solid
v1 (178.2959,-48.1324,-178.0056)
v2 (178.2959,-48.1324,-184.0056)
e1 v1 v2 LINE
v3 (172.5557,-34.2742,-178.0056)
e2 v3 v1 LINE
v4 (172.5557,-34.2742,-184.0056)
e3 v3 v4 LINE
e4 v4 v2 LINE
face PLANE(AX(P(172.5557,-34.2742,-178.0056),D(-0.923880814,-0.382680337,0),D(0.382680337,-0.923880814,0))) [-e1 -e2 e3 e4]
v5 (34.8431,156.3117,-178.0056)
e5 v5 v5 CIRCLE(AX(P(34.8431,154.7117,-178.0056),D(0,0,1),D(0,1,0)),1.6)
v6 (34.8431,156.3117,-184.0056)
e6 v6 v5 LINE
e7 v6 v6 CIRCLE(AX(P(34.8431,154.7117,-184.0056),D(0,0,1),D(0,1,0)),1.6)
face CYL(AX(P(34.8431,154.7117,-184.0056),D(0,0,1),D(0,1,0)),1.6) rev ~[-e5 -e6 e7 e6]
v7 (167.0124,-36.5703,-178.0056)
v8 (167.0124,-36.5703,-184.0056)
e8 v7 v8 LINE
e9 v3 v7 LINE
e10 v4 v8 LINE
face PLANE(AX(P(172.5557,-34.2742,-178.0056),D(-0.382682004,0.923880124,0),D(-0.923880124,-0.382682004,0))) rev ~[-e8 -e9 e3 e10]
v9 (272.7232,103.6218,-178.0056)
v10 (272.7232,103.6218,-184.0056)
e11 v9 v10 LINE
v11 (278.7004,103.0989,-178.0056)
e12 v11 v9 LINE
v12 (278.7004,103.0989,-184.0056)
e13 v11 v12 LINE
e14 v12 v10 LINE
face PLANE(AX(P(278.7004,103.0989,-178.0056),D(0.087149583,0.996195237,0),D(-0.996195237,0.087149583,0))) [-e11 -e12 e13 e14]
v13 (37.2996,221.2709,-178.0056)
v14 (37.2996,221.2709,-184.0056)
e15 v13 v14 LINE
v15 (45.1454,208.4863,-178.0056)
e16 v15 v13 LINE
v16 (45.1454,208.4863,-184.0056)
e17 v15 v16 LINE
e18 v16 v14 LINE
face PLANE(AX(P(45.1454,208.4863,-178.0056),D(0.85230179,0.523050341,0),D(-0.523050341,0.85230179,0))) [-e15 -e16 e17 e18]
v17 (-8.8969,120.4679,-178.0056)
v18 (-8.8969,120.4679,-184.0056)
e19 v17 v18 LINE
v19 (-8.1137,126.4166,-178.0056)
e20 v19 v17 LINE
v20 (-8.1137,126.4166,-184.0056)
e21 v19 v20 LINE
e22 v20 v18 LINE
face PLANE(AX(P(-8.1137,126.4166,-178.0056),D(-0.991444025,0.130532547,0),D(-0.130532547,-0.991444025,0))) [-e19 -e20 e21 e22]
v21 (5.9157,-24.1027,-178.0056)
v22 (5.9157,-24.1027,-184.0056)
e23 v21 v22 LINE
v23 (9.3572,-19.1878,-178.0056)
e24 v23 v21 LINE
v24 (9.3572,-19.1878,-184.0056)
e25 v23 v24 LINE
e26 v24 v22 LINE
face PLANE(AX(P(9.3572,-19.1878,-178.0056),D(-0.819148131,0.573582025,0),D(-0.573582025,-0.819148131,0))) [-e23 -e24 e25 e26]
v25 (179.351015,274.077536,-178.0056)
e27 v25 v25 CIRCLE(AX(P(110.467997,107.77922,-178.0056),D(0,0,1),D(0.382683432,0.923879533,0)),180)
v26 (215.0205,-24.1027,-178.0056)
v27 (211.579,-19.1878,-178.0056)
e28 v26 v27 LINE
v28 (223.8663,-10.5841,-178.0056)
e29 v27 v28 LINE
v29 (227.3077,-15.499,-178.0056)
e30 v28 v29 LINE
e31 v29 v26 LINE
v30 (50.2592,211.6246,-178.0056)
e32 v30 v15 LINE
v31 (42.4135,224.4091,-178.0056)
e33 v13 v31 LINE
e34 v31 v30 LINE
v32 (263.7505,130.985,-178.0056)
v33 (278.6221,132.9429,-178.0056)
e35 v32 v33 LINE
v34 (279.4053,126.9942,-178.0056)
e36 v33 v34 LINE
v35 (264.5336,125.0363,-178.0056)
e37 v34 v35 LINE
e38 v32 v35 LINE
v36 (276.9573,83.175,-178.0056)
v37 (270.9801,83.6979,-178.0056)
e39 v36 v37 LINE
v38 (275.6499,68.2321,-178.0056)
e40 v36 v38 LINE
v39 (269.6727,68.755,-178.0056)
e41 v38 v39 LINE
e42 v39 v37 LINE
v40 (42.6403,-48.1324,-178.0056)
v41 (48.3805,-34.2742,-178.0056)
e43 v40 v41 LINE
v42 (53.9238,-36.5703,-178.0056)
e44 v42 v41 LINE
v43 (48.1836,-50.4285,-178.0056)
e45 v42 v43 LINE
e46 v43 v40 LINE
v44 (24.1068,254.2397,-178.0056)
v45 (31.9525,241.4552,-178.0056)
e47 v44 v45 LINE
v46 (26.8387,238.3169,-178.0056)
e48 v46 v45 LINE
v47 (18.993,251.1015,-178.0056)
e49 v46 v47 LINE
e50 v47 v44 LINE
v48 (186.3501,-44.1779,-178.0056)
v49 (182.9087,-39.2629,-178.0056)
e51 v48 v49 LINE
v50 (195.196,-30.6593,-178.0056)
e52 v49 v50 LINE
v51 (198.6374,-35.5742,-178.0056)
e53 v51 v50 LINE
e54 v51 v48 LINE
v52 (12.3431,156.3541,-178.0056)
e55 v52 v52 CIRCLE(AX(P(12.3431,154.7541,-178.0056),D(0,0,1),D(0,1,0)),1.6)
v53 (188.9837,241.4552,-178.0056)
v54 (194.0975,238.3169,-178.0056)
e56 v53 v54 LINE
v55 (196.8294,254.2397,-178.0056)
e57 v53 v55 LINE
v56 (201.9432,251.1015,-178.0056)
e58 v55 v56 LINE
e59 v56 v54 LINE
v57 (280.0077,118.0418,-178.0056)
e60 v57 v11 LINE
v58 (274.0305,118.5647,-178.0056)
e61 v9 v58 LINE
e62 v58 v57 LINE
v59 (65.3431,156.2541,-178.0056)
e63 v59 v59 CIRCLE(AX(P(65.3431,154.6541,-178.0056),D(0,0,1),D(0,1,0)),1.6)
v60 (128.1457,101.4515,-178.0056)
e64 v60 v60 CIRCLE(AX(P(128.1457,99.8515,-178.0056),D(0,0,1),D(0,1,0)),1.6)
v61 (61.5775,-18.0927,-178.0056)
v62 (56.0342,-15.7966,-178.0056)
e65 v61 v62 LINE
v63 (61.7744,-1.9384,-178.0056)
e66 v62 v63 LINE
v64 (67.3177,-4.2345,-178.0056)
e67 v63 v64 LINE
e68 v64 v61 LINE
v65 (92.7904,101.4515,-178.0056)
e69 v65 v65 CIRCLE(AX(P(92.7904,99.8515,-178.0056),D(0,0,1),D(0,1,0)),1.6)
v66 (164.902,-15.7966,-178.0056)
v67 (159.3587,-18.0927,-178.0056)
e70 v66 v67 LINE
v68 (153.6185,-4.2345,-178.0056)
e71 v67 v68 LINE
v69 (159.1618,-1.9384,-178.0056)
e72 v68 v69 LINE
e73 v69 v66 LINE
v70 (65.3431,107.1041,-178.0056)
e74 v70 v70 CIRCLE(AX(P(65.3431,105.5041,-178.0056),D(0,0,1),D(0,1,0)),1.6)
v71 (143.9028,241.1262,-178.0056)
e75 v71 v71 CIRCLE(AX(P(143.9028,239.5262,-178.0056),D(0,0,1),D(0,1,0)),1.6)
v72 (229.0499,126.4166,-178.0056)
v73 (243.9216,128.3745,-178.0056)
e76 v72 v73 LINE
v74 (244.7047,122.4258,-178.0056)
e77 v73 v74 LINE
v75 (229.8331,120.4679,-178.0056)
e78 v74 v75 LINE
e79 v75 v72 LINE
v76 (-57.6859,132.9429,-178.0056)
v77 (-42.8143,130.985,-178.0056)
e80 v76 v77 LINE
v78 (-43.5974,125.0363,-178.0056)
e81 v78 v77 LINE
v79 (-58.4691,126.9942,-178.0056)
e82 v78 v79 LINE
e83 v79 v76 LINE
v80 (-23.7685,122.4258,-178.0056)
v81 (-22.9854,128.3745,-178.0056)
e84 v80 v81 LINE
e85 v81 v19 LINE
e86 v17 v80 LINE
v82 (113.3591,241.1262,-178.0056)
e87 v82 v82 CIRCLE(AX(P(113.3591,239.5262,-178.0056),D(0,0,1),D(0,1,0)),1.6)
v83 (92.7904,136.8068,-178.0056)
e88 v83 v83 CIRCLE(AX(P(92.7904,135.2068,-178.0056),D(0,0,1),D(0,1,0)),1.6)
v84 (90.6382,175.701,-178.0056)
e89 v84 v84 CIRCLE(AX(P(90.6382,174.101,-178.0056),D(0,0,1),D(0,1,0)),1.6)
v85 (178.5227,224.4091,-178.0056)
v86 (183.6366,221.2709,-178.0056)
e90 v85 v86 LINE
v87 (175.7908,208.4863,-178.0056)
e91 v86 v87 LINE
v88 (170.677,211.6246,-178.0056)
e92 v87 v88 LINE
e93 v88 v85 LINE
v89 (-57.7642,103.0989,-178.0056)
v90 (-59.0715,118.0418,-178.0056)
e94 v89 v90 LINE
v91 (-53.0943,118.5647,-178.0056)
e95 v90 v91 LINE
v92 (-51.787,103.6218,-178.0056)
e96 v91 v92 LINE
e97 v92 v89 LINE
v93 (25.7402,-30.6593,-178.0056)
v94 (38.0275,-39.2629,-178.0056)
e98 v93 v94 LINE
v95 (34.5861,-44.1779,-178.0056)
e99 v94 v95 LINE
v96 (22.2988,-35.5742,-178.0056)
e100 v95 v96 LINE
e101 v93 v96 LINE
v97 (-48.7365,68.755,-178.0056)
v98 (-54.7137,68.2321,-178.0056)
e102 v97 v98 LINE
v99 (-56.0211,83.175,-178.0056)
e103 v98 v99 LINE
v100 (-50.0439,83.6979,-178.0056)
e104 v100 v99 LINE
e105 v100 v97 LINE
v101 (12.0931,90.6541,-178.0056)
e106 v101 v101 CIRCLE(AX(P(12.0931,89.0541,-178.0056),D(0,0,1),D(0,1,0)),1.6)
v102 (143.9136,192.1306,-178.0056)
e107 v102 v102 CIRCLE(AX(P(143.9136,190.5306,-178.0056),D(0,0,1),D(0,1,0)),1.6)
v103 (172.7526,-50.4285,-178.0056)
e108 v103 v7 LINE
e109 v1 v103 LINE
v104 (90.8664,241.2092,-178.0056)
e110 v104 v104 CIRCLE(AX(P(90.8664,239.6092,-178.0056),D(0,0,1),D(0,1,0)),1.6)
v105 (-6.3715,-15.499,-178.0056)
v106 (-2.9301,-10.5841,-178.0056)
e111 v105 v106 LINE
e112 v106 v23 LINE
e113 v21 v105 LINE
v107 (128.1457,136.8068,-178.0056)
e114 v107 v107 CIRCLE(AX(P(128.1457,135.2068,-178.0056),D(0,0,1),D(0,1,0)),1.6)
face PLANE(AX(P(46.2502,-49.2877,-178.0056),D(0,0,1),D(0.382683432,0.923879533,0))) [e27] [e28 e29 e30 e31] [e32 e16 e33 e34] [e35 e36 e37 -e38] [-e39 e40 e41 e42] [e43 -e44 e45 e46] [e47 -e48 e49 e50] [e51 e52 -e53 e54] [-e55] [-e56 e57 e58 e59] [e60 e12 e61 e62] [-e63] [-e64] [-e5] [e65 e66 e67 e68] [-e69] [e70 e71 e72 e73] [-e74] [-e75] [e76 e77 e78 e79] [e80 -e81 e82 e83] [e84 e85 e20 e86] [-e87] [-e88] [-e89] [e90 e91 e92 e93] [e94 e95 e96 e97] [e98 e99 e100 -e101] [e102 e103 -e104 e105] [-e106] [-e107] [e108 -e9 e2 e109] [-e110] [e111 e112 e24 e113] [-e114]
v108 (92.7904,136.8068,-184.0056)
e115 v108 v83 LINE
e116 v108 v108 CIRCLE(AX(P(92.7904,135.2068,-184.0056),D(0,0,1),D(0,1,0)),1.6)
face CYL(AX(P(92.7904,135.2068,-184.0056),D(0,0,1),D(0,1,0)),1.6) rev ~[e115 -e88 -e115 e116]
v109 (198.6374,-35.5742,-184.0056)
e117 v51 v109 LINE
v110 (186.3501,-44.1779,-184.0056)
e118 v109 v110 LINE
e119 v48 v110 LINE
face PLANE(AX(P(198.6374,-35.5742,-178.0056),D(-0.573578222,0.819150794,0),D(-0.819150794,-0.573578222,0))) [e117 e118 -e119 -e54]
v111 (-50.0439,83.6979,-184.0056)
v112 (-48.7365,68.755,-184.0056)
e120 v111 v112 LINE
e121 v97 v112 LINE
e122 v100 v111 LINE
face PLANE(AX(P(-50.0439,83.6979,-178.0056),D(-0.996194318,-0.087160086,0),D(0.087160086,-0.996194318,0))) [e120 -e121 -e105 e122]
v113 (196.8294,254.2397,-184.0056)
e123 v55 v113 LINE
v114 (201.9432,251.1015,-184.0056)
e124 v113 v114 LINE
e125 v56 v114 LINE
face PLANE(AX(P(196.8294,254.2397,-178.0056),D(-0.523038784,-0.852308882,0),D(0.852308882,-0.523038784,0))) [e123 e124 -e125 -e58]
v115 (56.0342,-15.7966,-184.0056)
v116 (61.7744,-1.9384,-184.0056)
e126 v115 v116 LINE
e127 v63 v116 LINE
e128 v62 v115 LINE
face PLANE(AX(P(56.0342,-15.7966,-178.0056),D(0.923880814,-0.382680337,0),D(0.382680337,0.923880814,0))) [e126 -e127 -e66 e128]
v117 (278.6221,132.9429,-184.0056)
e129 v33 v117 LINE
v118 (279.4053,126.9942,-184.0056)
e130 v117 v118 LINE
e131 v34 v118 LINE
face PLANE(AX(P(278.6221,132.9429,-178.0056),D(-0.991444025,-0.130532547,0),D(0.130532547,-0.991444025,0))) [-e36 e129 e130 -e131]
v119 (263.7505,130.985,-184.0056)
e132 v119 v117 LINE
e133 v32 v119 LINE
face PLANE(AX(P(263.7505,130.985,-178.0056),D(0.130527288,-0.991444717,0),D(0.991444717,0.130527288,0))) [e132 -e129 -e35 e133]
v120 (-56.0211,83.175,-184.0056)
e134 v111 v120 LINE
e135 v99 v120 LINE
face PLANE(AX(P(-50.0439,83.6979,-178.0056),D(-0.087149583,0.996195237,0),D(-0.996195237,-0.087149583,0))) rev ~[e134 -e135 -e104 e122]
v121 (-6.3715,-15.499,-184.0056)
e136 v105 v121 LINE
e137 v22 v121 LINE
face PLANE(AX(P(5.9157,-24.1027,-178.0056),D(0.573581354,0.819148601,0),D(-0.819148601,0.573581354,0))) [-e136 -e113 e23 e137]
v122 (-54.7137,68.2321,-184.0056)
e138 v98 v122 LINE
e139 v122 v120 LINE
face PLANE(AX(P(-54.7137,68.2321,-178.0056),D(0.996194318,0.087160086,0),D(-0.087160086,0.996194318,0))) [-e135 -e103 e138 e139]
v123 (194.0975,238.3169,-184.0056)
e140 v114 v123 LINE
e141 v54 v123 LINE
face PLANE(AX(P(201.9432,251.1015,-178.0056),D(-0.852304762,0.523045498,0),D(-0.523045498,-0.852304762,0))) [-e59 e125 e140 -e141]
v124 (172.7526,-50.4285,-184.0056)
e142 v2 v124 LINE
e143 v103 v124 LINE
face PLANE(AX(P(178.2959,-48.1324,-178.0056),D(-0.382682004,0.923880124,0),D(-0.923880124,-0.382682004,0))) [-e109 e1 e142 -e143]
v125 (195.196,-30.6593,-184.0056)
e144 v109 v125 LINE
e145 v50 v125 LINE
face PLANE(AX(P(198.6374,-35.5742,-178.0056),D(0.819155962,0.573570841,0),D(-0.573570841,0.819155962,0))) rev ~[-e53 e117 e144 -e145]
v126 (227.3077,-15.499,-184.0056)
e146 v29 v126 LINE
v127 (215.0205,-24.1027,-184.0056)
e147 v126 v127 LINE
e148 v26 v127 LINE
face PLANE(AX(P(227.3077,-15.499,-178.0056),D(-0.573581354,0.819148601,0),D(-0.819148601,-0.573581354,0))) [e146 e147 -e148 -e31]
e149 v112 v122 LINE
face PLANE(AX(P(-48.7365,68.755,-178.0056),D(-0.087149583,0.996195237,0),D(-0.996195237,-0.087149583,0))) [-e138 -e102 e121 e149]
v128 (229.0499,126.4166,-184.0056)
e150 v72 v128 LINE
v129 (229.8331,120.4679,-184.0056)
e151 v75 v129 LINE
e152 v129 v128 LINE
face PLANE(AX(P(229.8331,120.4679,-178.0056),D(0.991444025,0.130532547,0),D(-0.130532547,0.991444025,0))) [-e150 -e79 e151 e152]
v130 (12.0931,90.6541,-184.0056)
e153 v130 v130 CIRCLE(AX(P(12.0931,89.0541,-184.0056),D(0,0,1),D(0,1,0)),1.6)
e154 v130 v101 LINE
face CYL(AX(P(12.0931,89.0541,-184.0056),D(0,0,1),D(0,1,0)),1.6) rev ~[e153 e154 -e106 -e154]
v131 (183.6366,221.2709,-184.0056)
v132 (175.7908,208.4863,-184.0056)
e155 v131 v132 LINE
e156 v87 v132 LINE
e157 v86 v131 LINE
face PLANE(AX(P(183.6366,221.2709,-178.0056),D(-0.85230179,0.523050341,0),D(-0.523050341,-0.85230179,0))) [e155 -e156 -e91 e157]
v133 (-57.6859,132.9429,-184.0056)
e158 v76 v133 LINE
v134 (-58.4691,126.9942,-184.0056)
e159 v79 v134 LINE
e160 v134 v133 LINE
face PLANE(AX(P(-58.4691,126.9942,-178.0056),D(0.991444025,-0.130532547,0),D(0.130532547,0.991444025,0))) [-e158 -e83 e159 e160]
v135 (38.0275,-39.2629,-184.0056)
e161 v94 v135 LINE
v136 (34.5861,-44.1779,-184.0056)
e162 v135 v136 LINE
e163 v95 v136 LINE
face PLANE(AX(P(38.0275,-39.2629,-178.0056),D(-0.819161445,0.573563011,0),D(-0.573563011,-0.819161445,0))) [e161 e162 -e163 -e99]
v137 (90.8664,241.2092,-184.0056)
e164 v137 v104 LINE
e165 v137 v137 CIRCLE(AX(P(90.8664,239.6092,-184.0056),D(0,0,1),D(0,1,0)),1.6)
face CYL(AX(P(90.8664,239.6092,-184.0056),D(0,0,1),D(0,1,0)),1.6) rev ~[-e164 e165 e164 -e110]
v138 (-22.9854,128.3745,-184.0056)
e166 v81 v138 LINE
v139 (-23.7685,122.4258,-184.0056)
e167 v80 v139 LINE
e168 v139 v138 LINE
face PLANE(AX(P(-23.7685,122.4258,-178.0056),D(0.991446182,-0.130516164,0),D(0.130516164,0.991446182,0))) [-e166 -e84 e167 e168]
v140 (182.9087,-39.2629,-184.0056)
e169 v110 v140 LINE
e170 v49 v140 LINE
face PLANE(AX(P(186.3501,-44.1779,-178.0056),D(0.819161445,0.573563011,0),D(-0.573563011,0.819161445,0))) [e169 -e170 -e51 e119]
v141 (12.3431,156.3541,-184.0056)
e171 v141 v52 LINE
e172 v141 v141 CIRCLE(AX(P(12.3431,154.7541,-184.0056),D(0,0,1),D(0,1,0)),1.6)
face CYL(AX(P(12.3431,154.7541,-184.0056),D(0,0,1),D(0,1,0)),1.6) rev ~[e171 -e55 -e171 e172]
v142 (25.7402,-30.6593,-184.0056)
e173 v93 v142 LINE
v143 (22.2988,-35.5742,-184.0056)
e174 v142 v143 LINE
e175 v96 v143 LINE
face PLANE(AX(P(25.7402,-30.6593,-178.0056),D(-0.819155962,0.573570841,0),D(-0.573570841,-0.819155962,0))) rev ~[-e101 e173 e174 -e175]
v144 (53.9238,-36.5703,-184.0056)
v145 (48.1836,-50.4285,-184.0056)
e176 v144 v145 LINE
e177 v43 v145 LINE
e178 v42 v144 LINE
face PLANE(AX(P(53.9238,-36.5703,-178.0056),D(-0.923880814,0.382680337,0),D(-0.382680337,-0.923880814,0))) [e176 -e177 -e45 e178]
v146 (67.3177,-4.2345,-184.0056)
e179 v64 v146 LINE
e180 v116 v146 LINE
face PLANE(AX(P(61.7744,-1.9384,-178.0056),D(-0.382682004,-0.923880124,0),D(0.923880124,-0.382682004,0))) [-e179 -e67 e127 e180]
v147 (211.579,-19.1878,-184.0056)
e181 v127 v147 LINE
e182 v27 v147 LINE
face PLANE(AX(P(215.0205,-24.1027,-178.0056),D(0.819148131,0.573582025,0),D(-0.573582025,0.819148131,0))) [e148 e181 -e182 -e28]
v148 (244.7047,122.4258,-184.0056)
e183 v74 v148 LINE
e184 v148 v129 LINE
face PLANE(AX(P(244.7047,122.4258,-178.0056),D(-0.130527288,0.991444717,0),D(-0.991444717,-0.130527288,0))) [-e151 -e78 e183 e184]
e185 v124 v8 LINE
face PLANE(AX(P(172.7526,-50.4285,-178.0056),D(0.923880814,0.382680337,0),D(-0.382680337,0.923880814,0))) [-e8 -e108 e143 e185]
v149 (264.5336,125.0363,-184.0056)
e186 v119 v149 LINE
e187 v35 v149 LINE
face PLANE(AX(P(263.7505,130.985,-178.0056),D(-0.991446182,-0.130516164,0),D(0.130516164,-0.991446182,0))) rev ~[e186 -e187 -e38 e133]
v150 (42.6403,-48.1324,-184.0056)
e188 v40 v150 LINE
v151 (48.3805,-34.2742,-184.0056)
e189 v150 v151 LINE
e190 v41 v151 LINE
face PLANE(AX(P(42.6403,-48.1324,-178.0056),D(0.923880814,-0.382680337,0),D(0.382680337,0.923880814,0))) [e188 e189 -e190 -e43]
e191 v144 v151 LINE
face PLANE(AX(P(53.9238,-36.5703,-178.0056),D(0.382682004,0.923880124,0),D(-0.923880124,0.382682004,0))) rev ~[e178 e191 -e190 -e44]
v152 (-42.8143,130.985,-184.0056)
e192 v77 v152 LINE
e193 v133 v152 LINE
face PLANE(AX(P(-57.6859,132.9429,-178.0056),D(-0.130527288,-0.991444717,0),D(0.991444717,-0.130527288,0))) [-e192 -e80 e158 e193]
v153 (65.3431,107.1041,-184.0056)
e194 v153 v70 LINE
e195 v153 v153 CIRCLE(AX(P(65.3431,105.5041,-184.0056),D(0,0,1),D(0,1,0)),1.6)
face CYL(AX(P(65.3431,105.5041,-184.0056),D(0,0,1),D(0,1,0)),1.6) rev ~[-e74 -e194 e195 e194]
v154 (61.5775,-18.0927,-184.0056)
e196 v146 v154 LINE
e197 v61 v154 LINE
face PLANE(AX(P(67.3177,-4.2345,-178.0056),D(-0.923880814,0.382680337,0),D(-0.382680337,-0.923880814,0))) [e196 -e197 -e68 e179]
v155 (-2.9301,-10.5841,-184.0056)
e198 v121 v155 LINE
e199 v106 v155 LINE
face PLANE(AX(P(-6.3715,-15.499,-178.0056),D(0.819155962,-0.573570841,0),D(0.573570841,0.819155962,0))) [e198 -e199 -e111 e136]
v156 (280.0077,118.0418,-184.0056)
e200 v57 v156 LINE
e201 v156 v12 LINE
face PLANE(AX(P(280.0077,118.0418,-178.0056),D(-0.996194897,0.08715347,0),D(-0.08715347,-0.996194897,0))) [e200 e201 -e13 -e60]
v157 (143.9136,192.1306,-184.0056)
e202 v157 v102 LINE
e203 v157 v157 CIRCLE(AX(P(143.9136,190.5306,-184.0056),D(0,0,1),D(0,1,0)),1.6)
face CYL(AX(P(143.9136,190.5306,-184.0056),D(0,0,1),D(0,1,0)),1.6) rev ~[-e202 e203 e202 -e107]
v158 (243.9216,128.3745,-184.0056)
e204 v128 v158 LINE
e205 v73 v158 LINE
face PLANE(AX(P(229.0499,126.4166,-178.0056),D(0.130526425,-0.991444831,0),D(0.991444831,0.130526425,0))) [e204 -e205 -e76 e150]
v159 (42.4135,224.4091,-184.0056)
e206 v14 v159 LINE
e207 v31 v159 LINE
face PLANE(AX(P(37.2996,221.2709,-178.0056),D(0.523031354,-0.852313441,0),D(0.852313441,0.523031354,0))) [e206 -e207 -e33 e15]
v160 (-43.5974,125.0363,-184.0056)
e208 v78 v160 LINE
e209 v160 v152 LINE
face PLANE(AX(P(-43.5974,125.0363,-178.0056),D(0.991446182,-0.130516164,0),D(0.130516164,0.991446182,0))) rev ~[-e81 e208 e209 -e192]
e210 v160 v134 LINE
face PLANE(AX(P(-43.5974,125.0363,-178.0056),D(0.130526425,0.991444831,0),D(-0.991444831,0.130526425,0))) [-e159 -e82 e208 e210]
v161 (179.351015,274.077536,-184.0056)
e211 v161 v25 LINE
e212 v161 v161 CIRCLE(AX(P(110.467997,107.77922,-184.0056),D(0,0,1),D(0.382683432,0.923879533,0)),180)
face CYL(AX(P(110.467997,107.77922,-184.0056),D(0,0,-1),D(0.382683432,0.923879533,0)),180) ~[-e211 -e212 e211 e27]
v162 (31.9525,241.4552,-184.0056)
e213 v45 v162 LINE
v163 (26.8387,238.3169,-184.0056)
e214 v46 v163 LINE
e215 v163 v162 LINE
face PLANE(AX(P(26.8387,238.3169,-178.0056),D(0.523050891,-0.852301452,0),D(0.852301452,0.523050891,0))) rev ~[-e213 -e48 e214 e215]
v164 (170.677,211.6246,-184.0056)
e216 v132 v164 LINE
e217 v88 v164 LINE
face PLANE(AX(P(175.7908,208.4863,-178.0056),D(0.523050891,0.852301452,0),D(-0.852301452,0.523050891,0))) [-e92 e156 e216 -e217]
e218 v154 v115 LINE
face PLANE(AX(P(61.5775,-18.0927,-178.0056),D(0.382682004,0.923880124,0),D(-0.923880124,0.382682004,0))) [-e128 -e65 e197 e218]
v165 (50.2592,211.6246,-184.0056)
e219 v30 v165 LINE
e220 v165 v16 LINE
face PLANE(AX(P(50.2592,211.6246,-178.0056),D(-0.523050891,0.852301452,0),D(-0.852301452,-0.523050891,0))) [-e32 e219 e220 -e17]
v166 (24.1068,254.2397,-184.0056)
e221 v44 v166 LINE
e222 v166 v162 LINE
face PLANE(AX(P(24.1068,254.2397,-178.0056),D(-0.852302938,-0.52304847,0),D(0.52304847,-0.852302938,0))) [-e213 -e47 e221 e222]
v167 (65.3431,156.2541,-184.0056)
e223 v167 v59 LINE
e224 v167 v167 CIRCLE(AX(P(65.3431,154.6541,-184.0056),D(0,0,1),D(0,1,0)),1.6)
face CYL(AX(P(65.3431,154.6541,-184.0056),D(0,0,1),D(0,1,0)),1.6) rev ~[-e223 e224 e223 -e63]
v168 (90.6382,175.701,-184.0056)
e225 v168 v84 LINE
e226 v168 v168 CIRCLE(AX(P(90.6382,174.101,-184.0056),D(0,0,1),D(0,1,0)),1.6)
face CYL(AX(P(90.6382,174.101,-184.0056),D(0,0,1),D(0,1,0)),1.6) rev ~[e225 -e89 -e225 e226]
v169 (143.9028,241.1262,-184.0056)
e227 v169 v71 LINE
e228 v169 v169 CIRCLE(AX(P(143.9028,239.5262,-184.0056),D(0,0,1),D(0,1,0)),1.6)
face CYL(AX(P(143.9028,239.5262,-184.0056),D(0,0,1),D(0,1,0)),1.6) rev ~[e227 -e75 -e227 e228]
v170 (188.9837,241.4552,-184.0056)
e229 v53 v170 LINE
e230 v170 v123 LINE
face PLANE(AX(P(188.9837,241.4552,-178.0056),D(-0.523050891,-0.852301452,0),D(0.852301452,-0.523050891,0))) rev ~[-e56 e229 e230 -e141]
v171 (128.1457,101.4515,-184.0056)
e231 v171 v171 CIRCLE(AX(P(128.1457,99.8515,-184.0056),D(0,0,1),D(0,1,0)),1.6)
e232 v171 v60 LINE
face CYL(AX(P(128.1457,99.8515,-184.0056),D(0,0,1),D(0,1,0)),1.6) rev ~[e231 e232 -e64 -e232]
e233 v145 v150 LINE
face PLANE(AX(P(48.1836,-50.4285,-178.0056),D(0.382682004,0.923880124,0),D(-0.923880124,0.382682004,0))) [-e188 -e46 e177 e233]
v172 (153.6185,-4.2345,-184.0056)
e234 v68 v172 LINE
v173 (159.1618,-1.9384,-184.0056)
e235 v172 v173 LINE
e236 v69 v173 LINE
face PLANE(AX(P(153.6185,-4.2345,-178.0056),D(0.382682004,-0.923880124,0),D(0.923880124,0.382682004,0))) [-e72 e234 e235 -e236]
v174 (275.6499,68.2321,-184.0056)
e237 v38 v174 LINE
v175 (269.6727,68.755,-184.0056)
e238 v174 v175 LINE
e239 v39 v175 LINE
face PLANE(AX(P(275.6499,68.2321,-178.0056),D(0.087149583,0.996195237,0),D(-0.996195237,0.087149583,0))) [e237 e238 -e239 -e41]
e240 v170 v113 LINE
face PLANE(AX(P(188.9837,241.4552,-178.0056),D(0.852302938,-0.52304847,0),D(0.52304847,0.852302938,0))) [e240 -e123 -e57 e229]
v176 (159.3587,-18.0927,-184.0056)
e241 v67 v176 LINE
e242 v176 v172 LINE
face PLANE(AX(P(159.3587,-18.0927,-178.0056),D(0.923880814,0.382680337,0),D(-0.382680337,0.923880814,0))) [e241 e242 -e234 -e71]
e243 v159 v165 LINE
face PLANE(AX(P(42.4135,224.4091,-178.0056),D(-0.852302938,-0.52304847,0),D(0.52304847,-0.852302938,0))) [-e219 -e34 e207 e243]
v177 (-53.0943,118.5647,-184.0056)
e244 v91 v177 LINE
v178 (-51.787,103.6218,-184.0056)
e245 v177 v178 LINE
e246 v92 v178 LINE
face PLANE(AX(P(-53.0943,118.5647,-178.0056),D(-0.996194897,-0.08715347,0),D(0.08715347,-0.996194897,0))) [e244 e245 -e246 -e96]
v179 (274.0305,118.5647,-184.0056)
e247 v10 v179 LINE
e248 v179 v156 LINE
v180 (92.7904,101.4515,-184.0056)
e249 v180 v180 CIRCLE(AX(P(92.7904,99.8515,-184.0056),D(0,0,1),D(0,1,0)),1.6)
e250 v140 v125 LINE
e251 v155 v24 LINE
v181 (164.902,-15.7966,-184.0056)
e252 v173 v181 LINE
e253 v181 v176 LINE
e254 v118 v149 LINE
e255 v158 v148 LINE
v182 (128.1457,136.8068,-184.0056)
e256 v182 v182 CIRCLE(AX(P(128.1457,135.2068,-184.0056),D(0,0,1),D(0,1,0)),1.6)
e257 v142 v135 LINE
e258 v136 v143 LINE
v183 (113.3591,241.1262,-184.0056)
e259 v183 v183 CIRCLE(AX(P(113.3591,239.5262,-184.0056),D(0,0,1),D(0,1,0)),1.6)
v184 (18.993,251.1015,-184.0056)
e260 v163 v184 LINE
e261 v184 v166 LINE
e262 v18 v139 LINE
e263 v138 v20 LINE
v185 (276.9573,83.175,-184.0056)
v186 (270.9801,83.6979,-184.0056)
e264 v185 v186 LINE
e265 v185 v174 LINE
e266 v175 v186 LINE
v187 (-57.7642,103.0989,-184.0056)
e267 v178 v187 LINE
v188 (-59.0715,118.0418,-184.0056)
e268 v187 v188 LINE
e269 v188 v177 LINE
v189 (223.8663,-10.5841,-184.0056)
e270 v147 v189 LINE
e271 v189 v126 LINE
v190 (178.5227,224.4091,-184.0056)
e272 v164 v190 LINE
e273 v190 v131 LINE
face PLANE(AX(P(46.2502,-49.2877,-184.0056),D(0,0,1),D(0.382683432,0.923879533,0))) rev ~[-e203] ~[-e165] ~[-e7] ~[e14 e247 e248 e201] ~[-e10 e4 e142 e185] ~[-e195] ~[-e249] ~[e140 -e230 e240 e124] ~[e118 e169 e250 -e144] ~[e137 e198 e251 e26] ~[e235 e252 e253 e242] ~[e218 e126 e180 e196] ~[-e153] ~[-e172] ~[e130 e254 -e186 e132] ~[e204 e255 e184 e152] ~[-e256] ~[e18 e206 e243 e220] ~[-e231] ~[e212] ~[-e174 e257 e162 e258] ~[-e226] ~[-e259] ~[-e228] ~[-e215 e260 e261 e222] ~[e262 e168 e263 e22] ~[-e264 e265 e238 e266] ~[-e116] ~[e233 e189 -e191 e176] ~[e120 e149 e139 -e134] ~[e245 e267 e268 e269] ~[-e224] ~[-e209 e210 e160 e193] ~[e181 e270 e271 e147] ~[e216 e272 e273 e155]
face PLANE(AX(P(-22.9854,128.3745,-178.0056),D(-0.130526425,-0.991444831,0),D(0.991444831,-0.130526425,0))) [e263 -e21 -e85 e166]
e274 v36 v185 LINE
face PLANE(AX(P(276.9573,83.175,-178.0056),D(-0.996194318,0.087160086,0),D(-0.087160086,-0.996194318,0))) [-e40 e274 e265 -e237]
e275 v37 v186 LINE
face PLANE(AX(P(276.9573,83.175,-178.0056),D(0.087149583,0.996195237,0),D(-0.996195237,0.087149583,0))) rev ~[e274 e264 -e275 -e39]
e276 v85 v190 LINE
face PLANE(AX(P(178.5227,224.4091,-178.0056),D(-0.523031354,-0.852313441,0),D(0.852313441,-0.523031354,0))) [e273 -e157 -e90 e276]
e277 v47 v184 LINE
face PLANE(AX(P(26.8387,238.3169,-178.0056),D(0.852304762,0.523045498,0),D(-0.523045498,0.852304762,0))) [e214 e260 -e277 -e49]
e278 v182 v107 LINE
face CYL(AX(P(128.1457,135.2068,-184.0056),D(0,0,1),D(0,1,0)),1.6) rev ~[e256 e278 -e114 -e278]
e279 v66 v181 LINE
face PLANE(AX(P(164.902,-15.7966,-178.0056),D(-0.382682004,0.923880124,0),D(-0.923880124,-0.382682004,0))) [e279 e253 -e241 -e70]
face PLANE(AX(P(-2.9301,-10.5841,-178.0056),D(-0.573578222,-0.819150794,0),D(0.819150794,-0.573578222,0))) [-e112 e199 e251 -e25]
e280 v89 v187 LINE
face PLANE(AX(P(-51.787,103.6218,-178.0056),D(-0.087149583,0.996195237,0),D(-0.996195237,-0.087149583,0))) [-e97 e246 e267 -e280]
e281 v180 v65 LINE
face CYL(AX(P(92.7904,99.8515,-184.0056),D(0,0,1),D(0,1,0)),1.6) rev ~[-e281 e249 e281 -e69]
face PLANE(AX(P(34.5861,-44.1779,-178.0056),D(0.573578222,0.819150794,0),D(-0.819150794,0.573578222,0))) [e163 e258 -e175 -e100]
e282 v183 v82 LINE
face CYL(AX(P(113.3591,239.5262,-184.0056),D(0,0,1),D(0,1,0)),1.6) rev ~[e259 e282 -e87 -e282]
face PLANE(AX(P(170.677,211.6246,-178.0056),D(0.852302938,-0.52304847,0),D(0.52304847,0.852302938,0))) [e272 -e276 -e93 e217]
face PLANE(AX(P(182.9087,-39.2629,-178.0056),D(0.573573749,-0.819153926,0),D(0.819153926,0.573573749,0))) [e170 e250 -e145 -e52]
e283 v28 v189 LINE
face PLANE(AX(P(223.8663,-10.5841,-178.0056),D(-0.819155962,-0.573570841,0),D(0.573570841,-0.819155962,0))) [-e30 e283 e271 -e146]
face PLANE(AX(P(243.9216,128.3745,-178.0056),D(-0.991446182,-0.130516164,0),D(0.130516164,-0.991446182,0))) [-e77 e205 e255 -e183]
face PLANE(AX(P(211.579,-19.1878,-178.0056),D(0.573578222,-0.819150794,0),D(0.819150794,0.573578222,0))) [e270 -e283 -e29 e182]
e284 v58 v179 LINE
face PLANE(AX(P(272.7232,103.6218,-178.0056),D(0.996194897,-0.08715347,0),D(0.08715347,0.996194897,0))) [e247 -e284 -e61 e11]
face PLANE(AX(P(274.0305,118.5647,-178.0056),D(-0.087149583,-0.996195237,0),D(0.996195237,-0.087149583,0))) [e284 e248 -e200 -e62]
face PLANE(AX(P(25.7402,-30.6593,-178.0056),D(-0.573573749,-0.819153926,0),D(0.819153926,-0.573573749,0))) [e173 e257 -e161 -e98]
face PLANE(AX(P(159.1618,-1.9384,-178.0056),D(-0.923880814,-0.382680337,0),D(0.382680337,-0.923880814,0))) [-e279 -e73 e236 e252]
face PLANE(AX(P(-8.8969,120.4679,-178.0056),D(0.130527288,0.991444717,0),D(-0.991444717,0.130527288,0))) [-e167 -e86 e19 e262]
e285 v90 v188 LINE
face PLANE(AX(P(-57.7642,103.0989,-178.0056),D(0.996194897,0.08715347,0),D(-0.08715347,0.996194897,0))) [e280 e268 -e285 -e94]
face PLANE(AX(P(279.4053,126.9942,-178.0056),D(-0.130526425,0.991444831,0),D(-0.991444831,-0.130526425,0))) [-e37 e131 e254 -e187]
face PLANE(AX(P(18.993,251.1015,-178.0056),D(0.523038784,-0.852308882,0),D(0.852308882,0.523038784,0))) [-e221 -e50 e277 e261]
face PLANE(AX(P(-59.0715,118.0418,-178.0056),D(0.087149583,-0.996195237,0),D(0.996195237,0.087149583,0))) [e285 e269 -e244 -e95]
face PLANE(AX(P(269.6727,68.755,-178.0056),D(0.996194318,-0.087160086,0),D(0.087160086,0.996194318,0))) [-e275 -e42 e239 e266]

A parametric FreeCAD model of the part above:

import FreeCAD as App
import Part
import Sketcher
Q = App.Units.Quantity


def add_polygon(sketch, points):
    """Adds a closed chain of lines whose ends are joined by coincident constraints."""
    first, n = sketch.GeometryCount, len(points)
    for a, b in zip(points, points[1:] + points[:1]):
        sketch.addGeometry(Part.LineSegment(App.Vector(*a, 0), App.Vector(*b, 0)), False)
    for i in range(n):
        sketch.addConstraint(Sketcher.Constraint("Coincident", first + i, 2, first + (i + 1) % n, 1))

doc = App.newDocument("Part")
params = doc.addObject("Spreadsheet::Sheet", "Params")
for row, (alias, value) in enumerate([
    ("sketch1_diameter", "360 mm"),
    ("pad1_length", "6 mm"),
    ("sketch2_length", "6 mm"),
    ("sketch2_length2", "15 mm"),
    ("sketch3_length", "6 mm"),
    ("sketch3_length2", "15 mm"),
    ("sketch4_diameter", "3.2 mm"),
    ("hole_diameter", "3.2 mm"),
    ("sketch5_diameter", "3.2 mm"),
    ("hole2_diameter", "3.2 mm"),
    ("sketch6_diameter", "3.2 mm"),
    ("hole3_diameter", "3.2 mm"),
], start=1):
    params.set(f"A{row}", alias)
    params.set(f"B{row}", "=" + value)
    params.setAlias(f"B{row}", alias)

body = doc.addObject("PartDesign::Body", "Body")

# Sketch on XY plane
sketch1 = doc.addObject("Sketcher::SketchObject", "Sketch")
body.addObject(sketch1)
sketch1.AttachmentSupport = (doc.XY_Plane, [""])
sketch1.MapMode = "FlatFace"
sketch1.AttachmentOffset = App.Placement(App.Vector(0, 0, -184.0056), App.Rotation())
sketch1.addGeometry(Part.Circle(App.Vector(110, 108, 0), App.Vector(0, 0, 1), 180), False)
sketch1.addConstraint(Sketcher.Constraint("Diameter", 0, 360.0))
sketch1.addConstraint(Sketcher.Constraint("DistanceX", -1, 1, 0, 3, 110.468))
sketch1.addConstraint(Sketcher.Constraint("DistanceY", -1, 1, 0, 3, 107.7792))
sketch1.setExpression("Constraints[0]", "Params.sketch1_diameter")
pad1 = doc.addObject("PartDesign::Pad", "Pad")
body.addObject(pad1)
pad1.Profile = sketch1
pad1.setExpression("Length", "Params.pad1_length")

# Sketch on XY plane
sketch2 = doc.addObject("Sketcher::SketchObject", "Sketch001")
body.addObject(sketch2)
sketch2.AttachmentSupport = (doc.XY_Plane, [""])
sketch2.MapMode = "FlatFace"
sketch2.AttachmentOffset = App.Placement(App.Vector(0, 0, -178.0056), App.Rotation())
add_polygon(sketch2, [(229, 126), (230, 120), (245, 122), (244, 128)])  # lines 0-3
add_polygon(sketch2, [(279, 133), (264, 131), (265, 125), (279, 127)])  # lines 4-7
add_polygon(sketch2, [(171, 212), (176, 208), (184, 221), (179, 224)])  # lines 8-11
add_polygon(sketch2, [(197, 254), (189, 241), (194, 238), (202, 251)])  # lines 12-15
add_polygon(sketch2, [(-9, 120), (-8, 126), (-23, 128), (-24, 122)])  # lines 16-19
add_polygon(sketch2, [(-58, 127), (-44, 125), (-43, 131), (-58, 133)])  # lines 20-23
add_polygon(sketch2, [(48, -50), (54, -37), (48, -34), (43, -48)])  # lines 24-27
add_polygon(sketch2, [(67, -4), (62, -2), (56, -16), (62, -18)])  # lines 28-31
add_polygon(sketch2, [(178, -48), (173, -34), (167, -37), (173, -50)])  # lines 32-35
add_polygon(sketch2, [(159, -2), (154, -4), (159, -18), (165, -16)])  # lines 36-39
add_polygon(sketch2, [(19, 251), (27, 238), (32, 241), (24, 254)])  # lines 40-43
add_polygon(sketch2, [(45, 208), (50, 212), (42, 224), (37, 221)])  # lines 44-47
sketch2.addConstraint(Sketcher.Constraint("Perpendicular", 0, 1))
sketch2.addConstraint(Sketcher.Constraint("Perpendicular", 1, 2))
sketch2.addConstraint(Sketcher.Constraint("Perpendicular", 2, 3))
sketch2.addConstraint(Sketcher.Constraint("Parallel", 3, 4))
sketch2.addConstraint(Sketcher.Constraint("Perpendicular", 4, 5))
sketch2.addConstraint(Sketcher.Constraint("Perpendicular", 5, 6))
sketch2.addConstraint(Sketcher.Constraint("Perpendicular", 6, 7))
sketch2.addConstraint(Sketcher.Constraint("Perpendicular", 8, 9))
sketch2.addConstraint(Sketcher.Constraint("Perpendicular", 9, 10))
sketch2.addConstraint(Sketcher.Constraint("Perpendicular", 10, 11))
sketch2.addConstraint(Sketcher.Constraint("Parallel", 11, 12))
sketch2.addConstraint(Sketcher.Constraint("Perpendicular", 12, 13))
sketch2.addConstraint(Sketcher.Constraint("Perpendicular", 13, 14))
sketch2.addConstraint(Sketcher.Constraint("Perpendicular", 14, 15))
sketch2.addConstraint(Sketcher.Constraint("Perpendicular", 16, 17))
sketch2.addConstraint(Sketcher.Constraint("Perpendicular", 17, 18))
sketch2.addConstraint(Sketcher.Constraint("Perpendicular", 18, 19))
sketch2.addConstraint(Sketcher.Constraint("Parallel", 19, 20))
sketch2.addConstraint(Sketcher.Constraint("Perpendicular", 20, 21))
sketch2.addConstraint(Sketcher.Constraint("Perpendicular", 21, 22))
sketch2.addConstraint(Sketcher.Constraint("Perpendicular", 22, 23))
sketch2.addConstraint(Sketcher.Constraint("Perpendicular", 24, 25))
sketch2.addConstraint(Sketcher.Constraint("Perpendicular", 25, 26))
sketch2.addConstraint(Sketcher.Constraint("Perpendicular", 26, 27))
sketch2.addConstraint(Sketcher.Constraint("Parallel", 27, 28))
sketch2.addConstraint(Sketcher.Constraint("Perpendicular", 28, 29))
sketch2.addConstraint(Sketcher.Constraint("Perpendicular", 29, 30))
sketch2.addConstraint(Sketcher.Constraint("Perpendicular", 30, 31))
sketch2.addConstraint(Sketcher.Constraint("Perpendicular", 32, 33))
sketch2.addConstraint(Sketcher.Constraint("Perpendicular", 33, 34))
sketch2.addConstraint(Sketcher.Constraint("Perpendicular", 34, 35))
sketch2.addConstraint(Sketcher.Constraint("Parallel", 35, 36))
sketch2.addConstraint(Sketcher.Constraint("Perpendicular", 36, 37))
sketch2.addConstraint(Sketcher.Constraint("Perpendicular", 37, 38))
sketch2.addConstraint(Sketcher.Constraint("Perpendicular", 38, 39))
sketch2.addConstraint(Sketcher.Constraint("Perpendicular", 40, 41))
sketch2.addConstraint(Sketcher.Constraint("Perpendicular", 41, 42))
sketch2.addConstraint(Sketcher.Constraint("Perpendicular", 42, 43))
sketch2.addConstraint(Sketcher.Constraint("Parallel", 43, 44))
sketch2.addConstraint(Sketcher.Constraint("Perpendicular", 44, 45))
sketch2.addConstraint(Sketcher.Constraint("Perpendicular", 45, 46))
sketch2.addConstraint(Sketcher.Constraint("Perpendicular", 46, 47))
sketch2.addConstraint(Sketcher.Constraint("Horizontal", 3, 2, 16, 2))
sketch2.addConstraint(Sketcher.Constraint("Horizontal", 2, 2, 17, 2))
sketch2.addConstraint(Sketcher.Constraint("Horizontal", 1, 2, 18, 2))
sketch2.addConstraint(Sketcher.Constraint("Horizontal", 5, 2, 20, 2))
sketch2.addConstraint(Sketcher.Constraint("Horizontal", 4, 2, 21, 2))
sketch2.addConstraint(Sketcher.Constraint("Horizontal", 7, 2, 22, 2))
sketch2.addConstraint(Sketcher.Constraint("Horizontal", 25, 2, 32, 2))
sketch2.addConstraint(Sketcher.Constraint("Horizontal", 24, 2, 33, 2))
sketch2.addConstraint(Sketcher.Constraint("Horizontal", 27, 2, 34, 2))
sketch2.addConstraint(Sketcher.Constraint("Horizontal", 31, 2, 36, 2))
sketch2.addConstraint(Sketcher.Constraint("Horizontal", 30, 2, 37, 2))
sketch2.addConstraint(Sketcher.Constraint("Horizontal", 29, 2, 38, 2))
sketch2.addConstraint(Sketcher.Constraint("Horizontal", 13, 2, 40, 2))
sketch2.addConstraint(Sketcher.Constraint("Horizontal", 12, 2, 41, 2))
sketch2.addConstraint(Sketcher.Constraint("Horizontal", 15, 2, 42, 2))
sketch2.addConstraint(Sketcher.Constraint("Horizontal", 11, 2, 44, 2))
sketch2.addConstraint(Sketcher.Constraint("Horizontal", 10, 2, 45, 2))
sketch2.addConstraint(Sketcher.Constraint("Horizontal", 9, 2, 46, 2))
sketch2.addConstraint(Sketcher.Constraint("Equal", 3, 4))
sketch2.addConstraint(Sketcher.Constraint("Equal", 2, 5))
sketch2.addConstraint(Sketcher.Constraint("Equal", 7, 8))
sketch2.addConstraint(Sketcher.Constraint("Equal", 6, 9))
sketch2.addConstraint(Sketcher.Constraint("Equal", 11, 12))
sketch2.addConstraint(Sketcher.Constraint("Equal", 10, 13))
sketch2.addConstraint(Sketcher.Constraint("Equal", 15, 16))
sketch2.addConstraint(Sketcher.Constraint("Equal", 22, 24))
sketch2.addConstraint(Sketcher.Constraint("Equal", 23, 25))
sketch2.addConstraint(Sketcher.Constraint("Equal", 27, 28))
sketch2.addConstraint(Sketcher.Constraint("Equal", 26, 29))
sketch2.addConstraint(Sketcher.Constraint("Equal", 31, 32))
sketch2.addConstraint(Sketcher.Constraint("Equal", 39, 40))
sketch2.addConstraint(Sketcher.Constraint("Distance", 0, 6.0))
sketch2.addConstraint(Sketcher.Constraint("Distance", 1, 15.0))
sketch2.addConstraint(Sketcher.Constraint("Angle", 0, Q("-82.4996 deg")))
sketch2.addConstraint(Sketcher.Constraint("Angle", 24, Q("67.5002 deg")))
sketch2.addConstraint(Sketcher.Constraint("DistanceY", 25, 2, 18, 2, 156.7))
sketch2.addConstraint(Sketcher.Constraint("DistanceX", -1, 1, 3, 2, 229.05))
sketch2.addConstraint(Sketcher.Constraint("DistanceY", 17, 2, 11, 2, 83.25))
sketch2.addConstraint(Sketcher.Constraint("DistanceY", 27, 2, 28, 2, 48.49))
sketch2.addConstraint(Sketcher.Constraint("DistanceY", -1, 1, 0, 2, 120.468))
sketch2.addConstraint(Sketcher.Constraint("DistanceY", -1, 1, 4, 2, 130.985))
sketch2.addConstraint(Sketcher.Constraint("DistanceX", -1, 1, 7, 2, 278.622))
sketch2.addConstraint(Sketcher.Constraint("DistanceY", -1, 1, 9, 2, 221.271))
sketch2.addConstraint(Sketcher.Constraint("DistanceX", -1, 1, 11, 2, 170.677))
sketch2.addConstraint(Sketcher.Constraint("DistanceY", -1, 1, 13, 2, 238.317))
sketch2.addConstraint(Sketcher.Constraint("DistanceX", 19, 2, -1, 1, 8.897))
sketch2.addConstraint(Sketcher.Constraint("DistanceX", 22, 2, -1, 1, 57.686))
sketch2.addConstraint(Sketcher.Constraint("DistanceX", -1, 1, 35, 2, 178.296))
sketch2.addConstraint(Sketcher.Constraint("DistanceX", -1, 1, 38, 2, 164.902))
sketch2.addConstraint(Sketcher.Constraint("DistanceX", -1, 1, 43, 2, 18.993))
sketch2.addConstraint(Sketcher.Constraint("DistanceX", 10, 2, 12, 2, 10.461))
sketch2.addConstraint(Sketcher.Constraint("DistanceX", 18, 2, 25, 2, 72.149))
sketch2.addConstraint(Sketcher.Constraint("DistanceX", 25, 2, 28, 2, 13.394))
sketch2.addConstraint(Sketcher.Constraint("DistanceX", 16, 2, 44, 2, 58.373))
sketch2.setExpression("Constraints[121]", "Params.sketch2_length")
sketch2.setExpression("Constraints[122]", "Params.sketch2_length2")
pocket1 = doc.addObject("PartDesign::Pocket", "Pocket")
body.addObject(pocket1)
pocket1.Profile = sketch2
pocket1.Type = "ThroughAll"

# Sketch on XY plane
sketch3 = doc.addObject("Sketcher::SketchObject", "Sketch002")
body.addObject(sketch3)
sketch3.AttachmentSupport = (doc.XY_Plane, [""])
sketch3.MapMode = "FlatFace"
sketch3.AttachmentOffset = App.Placement(App.Vector(0, 0, -178.0056), App.Rotation())
add_polygon(sketch3, [(280, 118), (274, 119), (273, 104), (279, 103)])  # lines 0-3
add_polygon(sketch3, [(276, 68), (277, 83), (271, 84), (270, 69)])  # lines 4-7
add_polygon(sketch3, [(227, -15), (224, -11), (212, -19), (215, -24)])  # lines 8-11
add_polygon(sketch3, [(186, -44), (199, -36), (195, -31), (183, -39)])  # lines 12-15
add_polygon(sketch3, [(-53, 119), (-59, 118), (-58, 103), (-52, 104)])  # lines 16-19
add_polygon(sketch3, [(-49, 69), (-50, 84), (-56, 83), (-55, 68)])  # lines 20-23
add_polygon(sketch3, [(-3, -11), (-6, -15), (6, -24), (9, -19)])  # lines 24-27
add_polygon(sketch3, [(38, -39), (26, -31), (22, -36), (35, -44)])  # lines 28-31
sketch3.addConstraint(Sketcher.Constraint("Perpendicular", 0, 1))
sketch3.addConstraint(Sketcher.Constraint("Perpendicular", 1, 2))
sketch3.addConstraint(Sketcher.Constraint("Perpendicular", 2, 3))
sketch3.addConstraint(Sketcher.Constraint("Parallel", 3, 4))
sketch3.addConstraint(Sketcher.Constraint("Perpendicular", 4, 5))
sketch3.addConstraint(Sketcher.Constraint("Perpendicular", 5, 6))
sketch3.addConstraint(Sketcher.Constraint("Perpendicular", 6, 7))
sketch3.addConstraint(Sketcher.Constraint("Perpendicular", 8, 9))
sketch3.addConstraint(Sketcher.Constraint("Perpendicular", 9, 10))
sketch3.addConstraint(Sketcher.Constraint("Perpendicular", 10, 11))
sketch3.addConstraint(Sketcher.Constraint("Parallel", 11, 12))
sketch3.addConstraint(Sketcher.Constraint("Perpendicular", 12, 13))
sketch3.addConstraint(Sketcher.Constraint("Perpendicular", 13, 14))
sketch3.addConstraint(Sketcher.Constraint("Perpendicular", 14, 15))
sketch3.addConstraint(Sketcher.Constraint("Perpendicular", 16, 17))
sketch3.addConstraint(Sketcher.Constraint("Perpendicular", 17, 18))
sketch3.addConstraint(Sketcher.Constraint("Perpendicular", 18, 19))
sketch3.addConstraint(Sketcher.Constraint("Parallel", 19, 20))
sketch3.addConstraint(Sketcher.Constraint("Perpendicular", 20, 21))
sketch3.addConstraint(Sketcher.Constraint("Perpendicular", 21, 22))
sketch3.addConstraint(Sketcher.Constraint("Perpendicular", 22, 23))
sketch3.addConstraint(Sketcher.Constraint("Perpendicular", 24, 25))
sketch3.addConstraint(Sketcher.Constraint("Perpendicular", 25, 26))
sketch3.addConstraint(Sketcher.Constraint("Perpendicular", 26, 27))
sketch3.addConstraint(Sketcher.Constraint("Parallel", 27, 28))
sketch3.addConstraint(Sketcher.Constraint("Perpendicular", 28, 29))
sketch3.addConstraint(Sketcher.Constraint("Perpendicular", 29, 30))
sketch3.addConstraint(Sketcher.Constraint("Perpendicular", 30, 31))
sketch3.addConstraint(Sketcher.Constraint("Horizontal", 3, 2, 16, 2))
sketch3.addConstraint(Sketcher.Constraint("Horizontal", 2, 2, 17, 2))
sketch3.addConstraint(Sketcher.Constraint("Horizontal", 1, 2, 18, 2))
sketch3.addConstraint(Sketcher.Constraint("Horizontal", 5, 2, 20, 2))
sketch3.addConstraint(Sketcher.Constraint("Horizontal", 4, 2, 21, 2))
sketch3.addConstraint(Sketcher.Constraint("Horizontal", 7, 2, 22, 2))
sketch3.addConstraint(Sketcher.Constraint("Horizontal", 11, 2, 24, 2))
sketch3.addConstraint(Sketcher.Constraint("Horizontal", 10, 2, 25, 2))
sketch3.addConstraint(Sketcher.Constraint("Horizontal", 9, 2, 26, 2))
sketch3.addConstraint(Sketcher.Constraint("Horizontal", 13, 2, 28, 2))
sketch3.addConstraint(Sketcher.Constraint("Horizontal", 12, 2, 29, 2))
sketch3.addConstraint(Sketcher.Constraint("Horizontal", 15, 2, 30, 2))
sketch3.addConstraint(Sketcher.Constraint("Equal", 3, 4))
sketch3.addConstraint(Sketcher.Constraint("Equal", 2, 5))
sketch3.addConstraint(Sketcher.Constraint("Equal", 7, 8))
sketch3.addConstraint(Sketcher.Constraint("Equal", 6, 9))
sketch3.addConstraint(Sketcher.Constraint("Equal", 11, 12))
sketch3.addConstraint(Sketcher.Constraint("Equal", 10, 13))
sketch3.addConstraint(Sketcher.Constraint("Equal", 15, 16))
sketch3.addConstraint(Sketcher.Constraint("Equal", 23, 24))
sketch3.addConstraint(Sketcher.Constraint("Angle", 0, Q("175.0004 deg")))
sketch3.addConstraint(Sketcher.Constraint("Angle", 8, Q("124.9996 deg")))
sketch3.addConstraint(Sketcher.Constraint("Distance", 0, 6.0))
sketch3.addConstraint(Sketcher.Constraint("Distance", 1, 15.0))
sketch3.addConstraint(Sketcher.Constraint("DistanceX", -1, 1, 5, 2, 270.98))
sketch3.addConstraint(Sketcher.Constraint("DistanceX", -1, 1, 15, 2, 186.35))
sketch3.addConstraint(Sketcher.Constraint("DistanceX", 27, 2, -1, 1, 2.93))
sketch3.addConstraint(Sketcher.Constraint("DistanceY", 9, 2, 7, 2, 87.42))
sketch3.addConstraint(Sketcher.Constraint("DistanceY", 12, 2, 8, 2, 24.99))
sketch3.addConstraint(Sketcher.Constraint("DistanceY", -1, 1, 2, 2, 103.099))
sketch3.addConstraint(Sketcher.Constraint("DistanceY", -1, 1, 4, 2, 83.175))
sketch3.addConstraint(Sketcher.Constraint("DistanceX", -1, 1, 9, 2, 211.579))
sketch3.addConstraint(Sketcher.Constraint("DistanceX", 18, 2, -1, 1, 51.787))
sketch3.addConstraint(Sketcher.Constraint("DistanceX", 20, 2, -1, 1, 50.044))
sketch3.addConstraint(Sketcher.Constraint("DistanceX", -1, 1, 30, 2, 34.586))
sketch3.addConstraint(Sketcher.Constraint("DistanceX", 4, 2, 2, 2, 1.743))
sketch3.setExpression("Constraints[82]", "Params.sketch3_length")
sketch3.setExpression("Constraints[83]", "Params.sketch3_length2")
pocket2 = doc.addObject("PartDesign::Pocket", "Pocket001")
body.addObject(pocket2)
pocket2.Profile = sketch3
pocket2.Type = "ThroughAll"

# Sketch on XY plane
sketch4 = doc.addObject("Sketcher::SketchObject", "Sketch003")
body.addObject(sketch4)
sketch4.AttachmentSupport = (doc.XY_Plane, [""])
sketch4.MapMode = "FlatFace"
sketch4.AttachmentOffset = App.Placement(App.Vector(0, 0, -184.0056), App.Rotation())
sketch4.addGeometry(Part.Circle(App.Vector(92.8, 99.9, 0), App.Vector(0, 0, 1), 1.6), False)
sketch4.addGeometry(Part.Circle(App.Vector(92.8, 135.2, 0), App.Vector(0, 0, 1), 1.6), False)
sketch4.addGeometry(Part.Circle(App.Vector(128.1, 135.2, 0), App.Vector(0, 0, 1), 1.6), False)
sketch4.addGeometry(Part.Circle(App.Vector(128.1, 99.9, 0), App.Vector(0, 0, 1), 1.6), False)
sketch4.addConstraint(Sketcher.Constraint("Equal", 0, 1))
sketch4.addConstraint(Sketcher.Constraint("Equal", 1, 2))
sketch4.addConstraint(Sketcher.Constraint("Equal", 2, 3))
sketch4.addConstraint(Sketcher.Constraint("Horizontal", 1, 3, 2, 3))
sketch4.addConstraint(Sketcher.Constraint("Horizontal", 0, 3, 3, 3))
sketch4.addConstraint(Sketcher.Constraint("Vertical", 0, 3, 1, 3))
sketch4.addConstraint(Sketcher.Constraint("Vertical", 2, 3, 3, 3))
sketch4.addConstraint(Sketcher.Constraint("Diameter", 0, 3.2))
sketch4.addConstraint(Sketcher.Constraint("DistanceX", -1, 1, 0, 3, 92.7904))
sketch4.addConstraint(Sketcher.Constraint("DistanceY", -1, 1, 0, 3, 99.8515))
sketch4.addConstraint(Sketcher.Constraint("DistanceY", -1, 1, 1, 3, 135.2068))
sketch4.addConstraint(Sketcher.Constraint("DistanceX", -1, 1, 2, 3, 128.1457))
sketch4.setExpression("Constraints[7]", "Params.sketch4_diameter")
doc.recompute()
hole = doc.addObject("PartDesign::Hole", "Hole")
body.addObject(hole)
hole.Profile = sketch4
hole.ThreadType = "None"
hole.setExpression("Diameter", "Params.hole_diameter")
hole.DepthType = "ThroughAll"
hole.Reversed = True

# Sketch on XY plane
sketch5 = doc.addObject("Sketcher::SketchObject", "Sketch004")
body.addObject(sketch5)
sketch5.AttachmentSupport = (doc.XY_Plane, [""])
sketch5.MapMode = "FlatFace"
sketch5.AttachmentOffset = App.Placement(App.Vector(0, 0, -184.0056), App.Rotation())
sketch5.addGeometry(Part.Circle(App.Vector(12.1, 89.1, 0), App.Vector(0, 0, 1), 1.6), False)
sketch5.addGeometry(Part.Circle(App.Vector(65.3, 105.5, 0), App.Vector(0, 0, 1), 1.6), False)
sketch5.addGeometry(Part.Circle(App.Vector(12.3, 154.8, 0), App.Vector(0, 0, 1), 1.6), False)
sketch5.addGeometry(Part.Circle(App.Vector(34.8, 154.7, 0), App.Vector(0, 0, 1), 1.6), False)
sketch5.addGeometry(Part.Circle(App.Vector(65.3, 154.7, 0), App.Vector(0, 0, 1), 1.6), False)
sketch5.addConstraint(Sketcher.Constraint("Equal", 0, 1))
sketch5.addConstraint(Sketcher.Constraint("Equal", 1, 2))
sketch5.addConstraint(Sketcher.Constraint("Equal", 2, 3))
sketch5.addConstraint(Sketcher.Constraint("Equal", 3, 4))
sketch5.addConstraint(Sketcher.Constraint("Vertical", 1, 3, 4, 3))
sketch5.addConstraint(Sketcher.Constraint("Diameter", 0, 3.2))
sketch5.addConstraint(Sketcher.Constraint("DistanceX", 2, 3, 1, 3, 53.0))
sketch5.addConstraint(Sketcher.Constraint("DistanceY", 0, 3, 2, 3, 65.7))
sketch5.addConstraint(Sketcher.Constraint("DistanceX", 2, 3, 3, 3, 22.5))
sketch5.addConstraint(Sketcher.Constraint("DistanceY", 4, 3, 2, 3, 0.1))
sketch5.addConstraint(Sketcher.Constraint("DistanceX", 0, 3, 1, 3, 53.25))
sketch5.addConstraint(Sketcher.Constraint("DistanceY", 0, 3, 1, 3, 16.45))
sketch5.addConstraint(Sketcher.Constraint("DistanceX", -1, 1, 0, 3, 12.093))
sketch5.addConstraint(Sketcher.Constraint("DistanceY", -1, 1, 0, 3, 89.054))
sketch5.addConstraint(Sketcher.Constraint("DistanceY", -1, 1, 3, 3, 154.7117))
sketch5.setExpression("Constraints[5]", "Params.sketch5_diameter")
doc.recompute()
hole2 = doc.addObject("PartDesign::Hole", "Hole001")
body.addObject(hole2)
hole2.Profile = sketch5
hole2.ThreadType = "None"
hole2.setExpression("Diameter", "Params.hole2_diameter")
hole2.DepthType = "ThroughAll"
hole2.Reversed = True

# Sketch on XY plane
sketch6 = doc.addObject("Sketcher::SketchObject", "Sketch005")
body.addObject(sketch6)
sketch6.AttachmentSupport = (doc.XY_Plane, [""])
sketch6.MapMode = "FlatFace"
sketch6.AttachmentOffset = App.Placement(App.Vector(0, 0, -184.0056), App.Rotation())
sketch6.addGeometry(Part.Circle(App.Vector(90.6, 174.1, 0), App.Vector(0, 0, 1), 1.6), False)
sketch6.addGeometry(Part.Circle(App.Vector(143.9, 190.5, 0), App.Vector(0, 0, 1), 1.6), False)
sketch6.addGeometry(Part.Circle(App.Vector(143.9, 239.5, 0), App.Vector(0, 0, 1), 1.6), False)
sketch6.addGeometry(Part.Circle(App.Vector(113.4, 239.5, 0), App.Vector(0, 0, 1), 1.6), False)
sketch6.addGeometry(Part.Circle(App.Vector(90.9, 239.6, 0), App.Vector(0, 0, 1), 1.6), False)
sketch6.addConstraint(Sketcher.Constraint("Equal", 0, 1))
sketch6.addConstraint(Sketcher.Constraint("Equal", 1, 2))
sketch6.addConstraint(Sketcher.Constraint("Equal", 2, 3))
sketch6.addConstraint(Sketcher.Constraint("Equal", 3, 4))
sketch6.addConstraint(Sketcher.Constraint("Horizontal", 2, 3, 3, 3))
sketch6.addConstraint(Sketcher.Constraint("Diameter", 0, 3.2))
sketch6.addConstraint(Sketcher.Constraint("DistanceY", -1, 1, 0, 3, 174.101))
sketch6.addConstraint(Sketcher.Constraint("DistanceX", -1, 1, 3, 3, 113.359))
sketch6.addConstraint(Sketcher.Constraint("DistanceX", 0, 3, 3, 3, 22.721))
sketch6.addConstraint(Sketcher.Constraint("DistanceY", 3, 3, 4, 3, 0.083))
sketch6.addConstraint(Sketcher.Constraint("DistanceX", -1, 1, 1, 3, 143.9136))
sketch6.addConstraint(Sketcher.Constraint("DistanceY", -1, 1, 1, 3, 190.5306))
sketch6.addConstraint(Sketcher.Constraint("DistanceX", -1, 1, 2, 3, 143.9028))
sketch6.addConstraint(Sketcher.Constraint("DistanceY", -1, 1, 2, 3, 239.5262))
sketch6.addConstraint(Sketcher.Constraint("DistanceX", -1, 1, 4, 3, 90.8664))
sketch6.setExpression("Constraints[5]", "Params.sketch6_diameter")
doc.recompute()
hole3 = doc.addObject("PartDesign::Hole", "Hole002")
body.addObject(hole3)
hole3.Profile = sketch6
hole3.ThreadType = "None"
hole3.setExpression("Diameter", "Params.hole3_diameter")
hole3.DepthType = "ThroughAll"
hole3.Reversed = True

doc.recompute()
